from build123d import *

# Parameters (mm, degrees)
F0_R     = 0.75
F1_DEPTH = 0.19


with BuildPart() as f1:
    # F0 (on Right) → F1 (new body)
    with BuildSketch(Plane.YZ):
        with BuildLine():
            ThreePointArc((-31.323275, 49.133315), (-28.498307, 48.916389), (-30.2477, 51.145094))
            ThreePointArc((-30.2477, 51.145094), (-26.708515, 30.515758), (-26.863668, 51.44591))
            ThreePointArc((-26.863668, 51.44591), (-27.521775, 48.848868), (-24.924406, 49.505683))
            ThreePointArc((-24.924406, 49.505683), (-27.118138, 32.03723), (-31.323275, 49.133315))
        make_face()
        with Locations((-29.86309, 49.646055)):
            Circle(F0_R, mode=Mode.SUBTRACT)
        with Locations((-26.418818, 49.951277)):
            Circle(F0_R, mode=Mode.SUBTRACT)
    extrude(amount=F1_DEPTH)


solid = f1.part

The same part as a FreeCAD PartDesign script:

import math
import FreeCAD as App
import Part
import Sketcher

V = App.Vector
Q = App.Units.Quantity

doc = App.newDocument("Part")
body = doc.addObject("PartDesign::Body", "Body")

# Sketch on YZ plane
sketch1 = body.newObject("Sketcher::SketchObject", "Sketch")
sketch1.AttachmentSupport = (doc.getObject("YZ_Plane"), [""])
sketch1.MapMode = "FlatFace"
sketch1.addGeometry([
    Part.ArcOfCircle(Part.Circle(V(-29.86309, 49.646055, 0), V(0, 0, 1), 1.547593), math.radians(-160.651425), math.radians(104.390053)),  # 0
    Part.ArcOfCircle(Part.Circle(V(-27.638223, 40.974517, 0), V(0, 0, 1), 10.5), math.radians(104.390046), math.radians(445.769611)),  # 1
    Part.ArcOfCircle(Part.Circle(V(-26.418818, 49.951277, 0), V(0, 0, 1), 1.559429), math.radians(106.574678), math.radians(343.396818)),  # 2
    Part.ArcOfCircle(Part.Circle(V(-27.638223, 40.974517, 0), V(0, 0, 1), 8.952407), math.radians(114.30708), math.radians(432.35381)),  # 3
    Part.Circle(V(-29.86309, 49.646055, 0), V(0, 0, 1), 0.75),  # 4
    Part.Circle(V(-26.418818, 49.951277, 0), V(0, 0, 1), 0.75),  # 5
], False)
sketch1.addConstraint([
    Sketcher.Constraint("Tangent", 0, 2, 1, 1),
    Sketcher.Constraint("Coincident", 1, 2, 2, 1),
    Sketcher.Constraint("Coincident", 2, 2, 3, 2),
    Sketcher.Constraint("Coincident", 3, 1, 0, 1),
    Sketcher.Constraint("Coincident", 3, 3, 1, 3),
    Sketcher.Constraint("Coincident", 4, 3, 0, 3),
    Sketcher.Constraint("Coincident", 5, 3, 2, 3),
    Sketcher.Constraint("Equal", 4, 5),
    Sketcher.Constraint("Diameter", 4, Q("1.5 mm")),
    Sketcher.Constraint("Radius", 1, Q("10.5 mm")),
    Sketcher.Constraint("Radius", 2, Q("1.559429 mm")),
    Sketcher.Constraint("Radius", 0, Q("1.547593 mm")),
    Sketcher.Constraint("Radius", 3, Q("8.952407 mm")),
    Sketcher.Constraint("DistanceX", 0, 2, -1, 1, Q("30.2477 mm")),
    Sketcher.Constraint("DistanceX", 0, 3, -1, 1, Q("29.86309 mm")),
    Sketcher.Constraint("DistanceX", 5, 3, -1, 1, Q("26.418818 mm")),
    Sketcher.Constraint("DistanceX", 1, 2, -1, 1, Q("26.863668 mm")),
    Sketcher.Constraint("DistanceY", -1, 1, 1, 2, Q("51.44591 mm")),
])
pad1 = body.newObject("PartDesign::Pad", "Pad")
pad1.Profile = sketch1
pad1.Length = 0.19

doc.recompute()
